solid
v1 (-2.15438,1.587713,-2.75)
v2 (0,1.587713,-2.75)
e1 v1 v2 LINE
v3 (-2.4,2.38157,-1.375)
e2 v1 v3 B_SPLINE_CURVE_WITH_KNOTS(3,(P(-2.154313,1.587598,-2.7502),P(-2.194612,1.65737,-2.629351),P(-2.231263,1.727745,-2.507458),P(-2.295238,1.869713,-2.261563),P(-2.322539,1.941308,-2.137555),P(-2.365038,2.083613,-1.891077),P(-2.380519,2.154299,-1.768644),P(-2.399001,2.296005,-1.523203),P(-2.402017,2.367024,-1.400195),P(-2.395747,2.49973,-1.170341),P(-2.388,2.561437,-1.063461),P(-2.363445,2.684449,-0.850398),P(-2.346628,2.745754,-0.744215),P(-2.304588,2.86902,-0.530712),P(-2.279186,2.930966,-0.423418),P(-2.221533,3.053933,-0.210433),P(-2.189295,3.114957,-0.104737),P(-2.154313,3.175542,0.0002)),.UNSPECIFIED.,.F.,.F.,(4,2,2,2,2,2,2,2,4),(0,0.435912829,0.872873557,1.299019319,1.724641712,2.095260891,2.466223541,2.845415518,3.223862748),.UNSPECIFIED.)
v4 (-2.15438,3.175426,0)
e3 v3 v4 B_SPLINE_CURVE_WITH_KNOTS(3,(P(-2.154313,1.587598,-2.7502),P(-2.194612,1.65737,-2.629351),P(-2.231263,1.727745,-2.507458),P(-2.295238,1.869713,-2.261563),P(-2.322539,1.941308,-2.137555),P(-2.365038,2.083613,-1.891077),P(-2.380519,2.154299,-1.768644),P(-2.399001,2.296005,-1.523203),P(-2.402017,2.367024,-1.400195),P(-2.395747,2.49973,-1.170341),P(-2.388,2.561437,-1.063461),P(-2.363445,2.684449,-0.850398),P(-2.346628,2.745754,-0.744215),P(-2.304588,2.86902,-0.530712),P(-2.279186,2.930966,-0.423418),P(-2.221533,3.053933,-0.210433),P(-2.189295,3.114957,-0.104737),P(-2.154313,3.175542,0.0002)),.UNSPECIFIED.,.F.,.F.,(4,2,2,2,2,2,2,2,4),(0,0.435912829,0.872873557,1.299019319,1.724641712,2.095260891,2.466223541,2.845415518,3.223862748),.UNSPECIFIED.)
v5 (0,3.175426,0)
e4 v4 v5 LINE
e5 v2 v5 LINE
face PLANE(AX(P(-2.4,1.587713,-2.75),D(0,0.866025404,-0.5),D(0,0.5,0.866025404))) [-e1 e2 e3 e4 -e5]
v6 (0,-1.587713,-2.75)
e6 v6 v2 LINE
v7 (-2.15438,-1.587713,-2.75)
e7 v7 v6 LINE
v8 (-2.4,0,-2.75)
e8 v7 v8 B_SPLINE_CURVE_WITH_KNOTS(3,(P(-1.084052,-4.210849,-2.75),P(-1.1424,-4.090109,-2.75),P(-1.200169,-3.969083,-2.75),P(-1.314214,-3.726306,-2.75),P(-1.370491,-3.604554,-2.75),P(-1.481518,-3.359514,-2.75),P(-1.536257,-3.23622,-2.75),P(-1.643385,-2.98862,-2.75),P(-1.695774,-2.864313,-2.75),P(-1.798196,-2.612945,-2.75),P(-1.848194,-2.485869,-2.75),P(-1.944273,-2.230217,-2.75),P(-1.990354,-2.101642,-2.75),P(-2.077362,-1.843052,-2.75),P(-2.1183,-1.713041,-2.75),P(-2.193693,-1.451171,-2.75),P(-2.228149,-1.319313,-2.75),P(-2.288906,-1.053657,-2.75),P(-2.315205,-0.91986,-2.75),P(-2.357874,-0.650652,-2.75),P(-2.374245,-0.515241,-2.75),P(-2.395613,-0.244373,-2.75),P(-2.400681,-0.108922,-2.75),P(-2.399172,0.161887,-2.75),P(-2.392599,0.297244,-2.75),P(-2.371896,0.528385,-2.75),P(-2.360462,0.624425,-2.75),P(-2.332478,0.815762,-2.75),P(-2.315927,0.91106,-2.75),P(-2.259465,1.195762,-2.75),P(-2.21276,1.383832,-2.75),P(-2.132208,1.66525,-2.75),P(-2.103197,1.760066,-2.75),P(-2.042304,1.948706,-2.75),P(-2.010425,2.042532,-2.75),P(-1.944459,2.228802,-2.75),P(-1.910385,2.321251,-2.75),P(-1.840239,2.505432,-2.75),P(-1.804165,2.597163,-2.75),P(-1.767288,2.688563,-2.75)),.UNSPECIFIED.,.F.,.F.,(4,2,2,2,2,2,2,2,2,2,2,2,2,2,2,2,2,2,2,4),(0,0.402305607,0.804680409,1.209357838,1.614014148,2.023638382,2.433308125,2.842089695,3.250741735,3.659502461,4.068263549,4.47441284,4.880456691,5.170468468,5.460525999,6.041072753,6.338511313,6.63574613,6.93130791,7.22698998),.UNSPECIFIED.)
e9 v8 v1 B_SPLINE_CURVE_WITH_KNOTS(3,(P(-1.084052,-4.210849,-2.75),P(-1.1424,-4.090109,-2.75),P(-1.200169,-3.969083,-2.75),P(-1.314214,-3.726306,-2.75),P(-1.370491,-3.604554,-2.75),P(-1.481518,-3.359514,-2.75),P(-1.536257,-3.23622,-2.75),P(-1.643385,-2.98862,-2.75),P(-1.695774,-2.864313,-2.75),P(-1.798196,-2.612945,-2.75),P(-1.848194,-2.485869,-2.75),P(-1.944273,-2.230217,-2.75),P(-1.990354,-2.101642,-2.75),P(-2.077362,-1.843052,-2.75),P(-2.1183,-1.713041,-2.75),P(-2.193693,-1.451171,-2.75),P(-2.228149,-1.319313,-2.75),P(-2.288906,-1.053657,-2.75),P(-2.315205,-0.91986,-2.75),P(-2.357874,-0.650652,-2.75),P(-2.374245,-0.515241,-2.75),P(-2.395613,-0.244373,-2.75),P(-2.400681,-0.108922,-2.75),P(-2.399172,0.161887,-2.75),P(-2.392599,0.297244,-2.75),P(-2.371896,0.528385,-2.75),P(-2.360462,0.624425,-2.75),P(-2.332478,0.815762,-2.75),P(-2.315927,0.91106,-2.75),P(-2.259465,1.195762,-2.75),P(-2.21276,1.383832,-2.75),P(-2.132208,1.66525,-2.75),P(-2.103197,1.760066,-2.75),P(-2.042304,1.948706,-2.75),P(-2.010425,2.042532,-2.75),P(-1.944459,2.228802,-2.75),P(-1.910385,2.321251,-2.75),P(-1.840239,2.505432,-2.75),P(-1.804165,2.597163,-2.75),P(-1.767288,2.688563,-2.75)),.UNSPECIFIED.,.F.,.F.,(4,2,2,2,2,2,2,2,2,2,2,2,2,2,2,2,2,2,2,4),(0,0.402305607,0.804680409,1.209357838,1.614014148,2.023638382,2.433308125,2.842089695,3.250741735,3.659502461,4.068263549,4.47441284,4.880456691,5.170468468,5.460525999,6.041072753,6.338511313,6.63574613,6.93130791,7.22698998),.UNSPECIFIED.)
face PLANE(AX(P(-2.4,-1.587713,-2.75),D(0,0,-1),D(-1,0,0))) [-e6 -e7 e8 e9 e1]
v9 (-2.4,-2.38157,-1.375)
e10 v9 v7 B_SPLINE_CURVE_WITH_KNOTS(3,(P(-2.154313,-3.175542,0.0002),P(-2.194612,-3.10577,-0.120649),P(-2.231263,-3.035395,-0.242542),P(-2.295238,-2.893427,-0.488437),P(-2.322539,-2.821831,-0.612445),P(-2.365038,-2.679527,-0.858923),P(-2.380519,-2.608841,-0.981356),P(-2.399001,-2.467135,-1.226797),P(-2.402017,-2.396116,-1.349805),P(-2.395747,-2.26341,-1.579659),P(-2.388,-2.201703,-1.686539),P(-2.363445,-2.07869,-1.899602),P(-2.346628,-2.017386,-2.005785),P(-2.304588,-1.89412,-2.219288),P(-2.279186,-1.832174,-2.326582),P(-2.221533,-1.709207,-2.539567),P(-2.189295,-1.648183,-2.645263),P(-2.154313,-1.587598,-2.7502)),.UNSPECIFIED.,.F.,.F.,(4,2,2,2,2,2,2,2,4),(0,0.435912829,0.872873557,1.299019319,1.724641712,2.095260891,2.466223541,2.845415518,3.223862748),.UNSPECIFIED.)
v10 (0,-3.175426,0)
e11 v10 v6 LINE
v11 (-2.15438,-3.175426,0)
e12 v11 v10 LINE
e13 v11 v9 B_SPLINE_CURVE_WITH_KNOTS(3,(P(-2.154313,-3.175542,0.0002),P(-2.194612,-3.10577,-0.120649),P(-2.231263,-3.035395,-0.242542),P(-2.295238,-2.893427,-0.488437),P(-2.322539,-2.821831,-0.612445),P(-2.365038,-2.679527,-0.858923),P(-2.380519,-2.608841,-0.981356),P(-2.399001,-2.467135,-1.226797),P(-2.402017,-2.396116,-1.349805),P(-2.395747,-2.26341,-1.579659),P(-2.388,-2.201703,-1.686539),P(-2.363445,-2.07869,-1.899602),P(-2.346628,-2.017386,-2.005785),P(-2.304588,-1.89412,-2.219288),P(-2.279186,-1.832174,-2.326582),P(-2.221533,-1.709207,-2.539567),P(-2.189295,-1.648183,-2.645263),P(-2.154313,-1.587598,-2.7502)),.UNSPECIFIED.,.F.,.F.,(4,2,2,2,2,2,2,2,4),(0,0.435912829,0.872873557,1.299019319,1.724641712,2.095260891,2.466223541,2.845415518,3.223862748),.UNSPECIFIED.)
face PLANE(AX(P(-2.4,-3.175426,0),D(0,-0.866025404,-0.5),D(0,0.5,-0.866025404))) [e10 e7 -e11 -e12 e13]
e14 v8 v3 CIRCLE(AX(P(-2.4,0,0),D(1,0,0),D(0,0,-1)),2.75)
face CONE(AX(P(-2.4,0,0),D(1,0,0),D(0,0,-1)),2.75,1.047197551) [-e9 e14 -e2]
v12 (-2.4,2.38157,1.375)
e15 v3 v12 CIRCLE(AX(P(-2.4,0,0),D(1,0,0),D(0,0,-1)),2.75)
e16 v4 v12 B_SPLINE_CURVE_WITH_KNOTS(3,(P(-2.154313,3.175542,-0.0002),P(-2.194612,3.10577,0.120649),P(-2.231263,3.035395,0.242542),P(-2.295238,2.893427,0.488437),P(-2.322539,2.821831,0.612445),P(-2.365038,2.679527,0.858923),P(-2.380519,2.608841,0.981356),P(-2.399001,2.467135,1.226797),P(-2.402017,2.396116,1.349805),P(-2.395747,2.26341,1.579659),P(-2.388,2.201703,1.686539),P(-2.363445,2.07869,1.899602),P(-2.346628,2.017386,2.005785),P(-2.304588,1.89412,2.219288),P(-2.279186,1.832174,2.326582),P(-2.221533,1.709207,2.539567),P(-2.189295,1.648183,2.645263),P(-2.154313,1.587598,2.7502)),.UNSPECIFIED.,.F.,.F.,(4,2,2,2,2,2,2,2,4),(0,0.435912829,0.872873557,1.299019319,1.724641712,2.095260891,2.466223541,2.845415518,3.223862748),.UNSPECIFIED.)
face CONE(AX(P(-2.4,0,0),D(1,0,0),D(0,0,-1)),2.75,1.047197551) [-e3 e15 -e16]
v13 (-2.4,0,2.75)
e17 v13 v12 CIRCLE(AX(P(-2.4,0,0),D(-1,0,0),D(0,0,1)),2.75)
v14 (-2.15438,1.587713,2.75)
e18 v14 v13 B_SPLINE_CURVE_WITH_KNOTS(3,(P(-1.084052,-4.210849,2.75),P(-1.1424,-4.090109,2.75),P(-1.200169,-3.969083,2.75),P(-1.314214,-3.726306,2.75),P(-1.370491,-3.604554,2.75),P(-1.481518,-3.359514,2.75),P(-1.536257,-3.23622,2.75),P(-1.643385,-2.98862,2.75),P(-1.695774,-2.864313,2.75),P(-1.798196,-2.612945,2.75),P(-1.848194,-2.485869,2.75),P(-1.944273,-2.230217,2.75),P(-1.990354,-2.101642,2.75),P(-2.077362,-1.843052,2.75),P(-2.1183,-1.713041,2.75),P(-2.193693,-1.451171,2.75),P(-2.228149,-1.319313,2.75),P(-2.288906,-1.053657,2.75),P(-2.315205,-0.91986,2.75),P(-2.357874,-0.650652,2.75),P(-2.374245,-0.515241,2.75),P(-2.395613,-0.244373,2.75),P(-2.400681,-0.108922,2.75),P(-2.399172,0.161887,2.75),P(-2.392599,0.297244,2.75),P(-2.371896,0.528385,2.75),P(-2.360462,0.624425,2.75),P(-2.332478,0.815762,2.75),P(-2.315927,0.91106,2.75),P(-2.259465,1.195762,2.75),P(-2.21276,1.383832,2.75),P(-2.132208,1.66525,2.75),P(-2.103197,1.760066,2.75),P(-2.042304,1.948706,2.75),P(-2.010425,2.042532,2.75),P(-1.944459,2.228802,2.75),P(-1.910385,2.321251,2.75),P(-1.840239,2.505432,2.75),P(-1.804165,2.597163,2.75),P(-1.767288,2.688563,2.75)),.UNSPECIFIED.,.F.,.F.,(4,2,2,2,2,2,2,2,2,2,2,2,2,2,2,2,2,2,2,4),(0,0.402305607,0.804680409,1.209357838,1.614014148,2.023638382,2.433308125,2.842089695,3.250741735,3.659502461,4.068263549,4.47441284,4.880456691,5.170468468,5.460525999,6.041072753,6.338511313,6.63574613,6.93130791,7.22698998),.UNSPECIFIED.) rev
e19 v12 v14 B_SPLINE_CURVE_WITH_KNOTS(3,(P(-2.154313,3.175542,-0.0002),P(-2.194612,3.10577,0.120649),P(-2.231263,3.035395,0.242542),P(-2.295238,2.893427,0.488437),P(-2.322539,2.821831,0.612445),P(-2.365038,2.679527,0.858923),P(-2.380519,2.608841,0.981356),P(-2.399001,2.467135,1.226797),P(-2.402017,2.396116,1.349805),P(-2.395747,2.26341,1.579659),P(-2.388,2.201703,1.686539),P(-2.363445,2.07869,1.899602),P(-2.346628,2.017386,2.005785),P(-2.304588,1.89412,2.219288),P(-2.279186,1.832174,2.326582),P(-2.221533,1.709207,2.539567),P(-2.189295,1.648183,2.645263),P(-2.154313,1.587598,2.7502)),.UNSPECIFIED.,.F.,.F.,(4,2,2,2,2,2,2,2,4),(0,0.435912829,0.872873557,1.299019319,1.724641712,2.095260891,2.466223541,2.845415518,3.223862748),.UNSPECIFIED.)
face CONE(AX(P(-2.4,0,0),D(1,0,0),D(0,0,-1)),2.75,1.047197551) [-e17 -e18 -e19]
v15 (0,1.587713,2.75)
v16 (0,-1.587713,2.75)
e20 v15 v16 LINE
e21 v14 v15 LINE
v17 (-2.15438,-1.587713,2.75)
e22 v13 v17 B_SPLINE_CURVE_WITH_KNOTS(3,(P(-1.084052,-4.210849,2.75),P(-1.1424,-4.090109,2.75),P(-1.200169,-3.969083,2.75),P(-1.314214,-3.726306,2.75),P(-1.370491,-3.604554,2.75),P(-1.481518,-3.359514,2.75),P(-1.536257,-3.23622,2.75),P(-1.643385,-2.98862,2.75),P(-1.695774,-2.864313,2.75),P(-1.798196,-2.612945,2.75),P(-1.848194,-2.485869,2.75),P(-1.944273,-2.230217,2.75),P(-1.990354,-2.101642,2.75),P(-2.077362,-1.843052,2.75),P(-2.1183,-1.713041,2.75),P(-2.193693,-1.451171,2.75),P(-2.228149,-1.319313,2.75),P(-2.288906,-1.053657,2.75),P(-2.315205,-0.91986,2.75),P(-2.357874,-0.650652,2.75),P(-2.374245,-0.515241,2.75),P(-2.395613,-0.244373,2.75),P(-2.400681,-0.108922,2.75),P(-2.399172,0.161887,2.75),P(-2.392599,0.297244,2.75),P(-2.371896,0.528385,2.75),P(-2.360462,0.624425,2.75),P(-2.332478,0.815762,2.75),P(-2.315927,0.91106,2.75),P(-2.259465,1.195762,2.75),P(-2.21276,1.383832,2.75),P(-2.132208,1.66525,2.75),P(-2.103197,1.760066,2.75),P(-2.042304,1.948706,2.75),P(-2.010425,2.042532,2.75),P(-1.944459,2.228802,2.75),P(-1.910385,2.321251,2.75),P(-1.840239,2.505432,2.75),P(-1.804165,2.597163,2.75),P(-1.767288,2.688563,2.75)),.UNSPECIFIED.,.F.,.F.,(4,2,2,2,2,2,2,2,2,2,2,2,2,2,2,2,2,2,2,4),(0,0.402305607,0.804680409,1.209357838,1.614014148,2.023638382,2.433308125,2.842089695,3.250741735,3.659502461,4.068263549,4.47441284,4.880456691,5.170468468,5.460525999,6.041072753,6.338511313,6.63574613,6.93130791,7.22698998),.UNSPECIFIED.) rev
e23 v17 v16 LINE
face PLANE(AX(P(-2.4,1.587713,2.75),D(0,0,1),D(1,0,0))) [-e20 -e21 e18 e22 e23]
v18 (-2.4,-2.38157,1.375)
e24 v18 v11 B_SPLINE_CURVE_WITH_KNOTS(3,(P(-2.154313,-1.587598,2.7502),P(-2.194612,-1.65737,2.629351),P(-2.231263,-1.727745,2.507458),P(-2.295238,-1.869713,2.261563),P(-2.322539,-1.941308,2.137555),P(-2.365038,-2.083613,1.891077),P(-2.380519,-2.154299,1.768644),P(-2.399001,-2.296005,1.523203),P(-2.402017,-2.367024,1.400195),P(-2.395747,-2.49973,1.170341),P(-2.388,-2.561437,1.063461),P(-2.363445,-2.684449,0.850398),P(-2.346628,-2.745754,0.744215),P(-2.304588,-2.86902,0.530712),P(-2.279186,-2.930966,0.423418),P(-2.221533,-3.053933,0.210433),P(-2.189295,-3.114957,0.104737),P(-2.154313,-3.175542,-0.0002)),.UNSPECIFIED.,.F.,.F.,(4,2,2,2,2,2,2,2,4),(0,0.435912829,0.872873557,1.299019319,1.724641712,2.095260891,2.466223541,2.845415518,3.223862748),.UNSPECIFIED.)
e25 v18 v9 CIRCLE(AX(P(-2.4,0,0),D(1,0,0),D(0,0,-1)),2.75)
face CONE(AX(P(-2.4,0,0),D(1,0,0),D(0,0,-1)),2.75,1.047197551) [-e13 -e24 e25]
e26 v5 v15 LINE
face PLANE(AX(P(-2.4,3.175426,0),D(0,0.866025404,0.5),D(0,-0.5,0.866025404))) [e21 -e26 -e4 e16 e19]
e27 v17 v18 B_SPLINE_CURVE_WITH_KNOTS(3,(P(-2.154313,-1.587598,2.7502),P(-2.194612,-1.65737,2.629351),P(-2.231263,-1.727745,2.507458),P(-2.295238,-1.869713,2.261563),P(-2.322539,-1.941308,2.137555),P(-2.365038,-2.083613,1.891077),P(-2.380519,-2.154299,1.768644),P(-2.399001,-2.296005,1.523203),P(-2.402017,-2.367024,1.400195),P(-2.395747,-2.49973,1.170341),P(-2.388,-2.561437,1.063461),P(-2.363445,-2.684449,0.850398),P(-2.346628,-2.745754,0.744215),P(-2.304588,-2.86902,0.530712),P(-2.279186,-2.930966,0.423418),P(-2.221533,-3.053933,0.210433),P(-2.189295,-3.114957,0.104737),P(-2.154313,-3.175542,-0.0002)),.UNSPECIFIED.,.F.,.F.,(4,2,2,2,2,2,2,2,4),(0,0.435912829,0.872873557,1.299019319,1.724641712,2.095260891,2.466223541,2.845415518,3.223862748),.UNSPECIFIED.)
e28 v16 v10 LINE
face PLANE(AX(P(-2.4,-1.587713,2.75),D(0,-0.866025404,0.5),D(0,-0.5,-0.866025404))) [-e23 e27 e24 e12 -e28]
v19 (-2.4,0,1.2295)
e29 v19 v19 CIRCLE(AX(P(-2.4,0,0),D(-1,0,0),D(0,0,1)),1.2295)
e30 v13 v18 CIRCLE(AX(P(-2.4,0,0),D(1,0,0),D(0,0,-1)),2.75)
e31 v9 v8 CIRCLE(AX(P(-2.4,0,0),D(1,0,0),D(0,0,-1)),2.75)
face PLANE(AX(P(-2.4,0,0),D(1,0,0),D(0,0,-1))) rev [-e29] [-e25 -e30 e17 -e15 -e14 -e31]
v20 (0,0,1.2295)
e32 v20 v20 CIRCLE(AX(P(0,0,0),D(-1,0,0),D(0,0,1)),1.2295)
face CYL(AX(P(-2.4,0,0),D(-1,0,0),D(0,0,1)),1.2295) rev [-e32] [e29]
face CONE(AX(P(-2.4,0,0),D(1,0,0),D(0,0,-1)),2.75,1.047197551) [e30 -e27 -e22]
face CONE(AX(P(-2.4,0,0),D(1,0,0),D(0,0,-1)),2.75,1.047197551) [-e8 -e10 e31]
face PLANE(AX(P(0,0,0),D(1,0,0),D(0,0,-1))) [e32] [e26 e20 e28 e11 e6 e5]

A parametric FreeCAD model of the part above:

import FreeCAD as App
import Part
import Sketcher
Q = App.Units.Quantity

doc = App.newDocument("Part")
params = doc.addObject("Spreadsheet::Sheet", "Params")
for row, (alias, value) in enumerate([
    ("pad1_length", "2.4 mm"),
    ("groove_angle", "360 deg"),
    ("hole_diameter", "2.459 mm"),
], start=1):
    params.set(f"A{row}", alias)
    params.set(f"B{row}", "=" + value)
    params.setAlias(f"B{row}", alias)

body = doc.addObject("PartDesign::Body", "Body")

sketch1 = body.newObject("Sketcher::SketchObject", "Sketch")
sketch1.AttachmentSupport = (doc.getObject("YZ_Plane"), [""])
sketch1.MapMode = "FlatFace"
sketch1.addGeometry([
    Part.LineSegment(App.Vector(3.2, 0, 0), App.Vector(1.6, 2.8, 0)),
    Part.LineSegment(App.Vector(1.6, 2.8, 0), App.Vector(-1.6, 2.8, 0)),
    Part.LineSegment(App.Vector(-1.6, 2.8, 0), App.Vector(-3.2, 0, 0)),
    Part.LineSegment(App.Vector(-3.2, 0, 0), App.Vector(-1.6, -2.8, 0)),
    Part.LineSegment(App.Vector(-1.6, -2.8, 0), App.Vector(1.6, -2.8, 0)),
    Part.LineSegment(App.Vector(1.6, -2.8, 0), App.Vector(3.2, 0, 0)),
], False)
sketch1.addConstraint([
    Sketcher.Constraint("Coincident", 0, 2, 1, 1),
    Sketcher.Constraint("Coincident", 1, 2, 2, 1),
    Sketcher.Constraint("Coincident", 2, 2, 3, 1),
    Sketcher.Constraint("Coincident", 3, 2, 4, 1),
    Sketcher.Constraint("Coincident", 4, 2, 5, 1),
    Sketcher.Constraint("Coincident", 5, 2, 0, 1),
    Sketcher.Constraint("Horizontal", 1),
    Sketcher.Constraint("Horizontal", 4),
    Sketcher.Constraint("Symmetric", 0, 2, 3, 2, -1, 1),
    Sketcher.Constraint("Symmetric", 2, 2, 5, 2, -1, 1),
    Sketcher.Constraint("PointOnObject", 2, 2, -1),
    Sketcher.Constraint("Parallel", 2, 5),
    Sketcher.Constraint("Vertical", 1, 2, 3, 2),
    Sketcher.Constraint("Angle", 0, Q("120 deg")),
    Sketcher.Constraint("DistanceY", 3, 2, 1, 2, 5.5),
    Sketcher.Constraint("DistanceX", 1, 2, 1, 1, 3.175426),
])
pad1 = body.newObject("PartDesign::Pad", "Pad")
pad1.Profile = sketch1
pad1.setExpression("Length", "Params.pad1_length")
pad1.Reversed = True

sketch2 = body.newObject("Sketcher::SketchObject", "Sketch001")
sketch2.AttachmentSupport = (doc.getObject("XY_Plane"), [""])
sketch2.MapMode = "FlatFace"
sketch2.addGeometry([
    Part.LineSegment(App.Vector(-2.4, 2.75, 0), App.Vector(-2.15, 3.18, 0)),
    Part.LineSegment(App.Vector(-2.15, 3.18, 0), App.Vector(-2.4, 3.18, 0)),
    Part.LineSegment(App.Vector(-2.4, 3.18, 0), App.Vector(-2.4, 2.75, 0)),
], False)
sketch2.addConstraint([
    Sketcher.Constraint("Coincident", 0, 2, 1, 1),
    Sketcher.Constraint("Coincident", 1, 2, 2, 1),
    Sketcher.Constraint("Coincident", 2, 2, 0, 1),
    Sketcher.Constraint("Horizontal", 1),
    Sketcher.Constraint("Vertical", 2),
    Sketcher.Constraint("Angle", 0, Q("60 deg")),
    Sketcher.Constraint("DistanceX", 1, 2, -1, 1, 2.4),
    Sketcher.Constraint("DistanceY", -1, 1, 2, 2, 2.75),
    Sketcher.Constraint("DistanceX", 1, 2, 1, 1, 0.24562),
])
groove = body.newObject("PartDesign::Groove", "Groove")
groove.Profile = sketch2
groove.ReferenceAxis = (sketch2, ["H_Axis"])
groove.setExpression("Angle", "Params.groove_angle")

sketch3 = body.newObject("Sketcher::SketchObject", "Sketch002")
sketch3.AttachmentSupport = (doc.getObject("YZ_Plane"), [""])
sketch3.MapMode = "FlatFace"
sketch3.AttachmentOffset = App.Placement(App.Vector(0, 0, -2.4), App.Rotation())
sketch3.addGeometry(Part.Circle(App.Vector(0, 0, 0), App.Vector(0, 0, 1), 1.2), False)
sketch3.addConstraint([
    Sketcher.Constraint("Coincident", 0, 3, -1, 1),
    Sketcher.Constraint("Diameter", 0, 2.459),
])
doc.recompute()
hole = body.newObject("PartDesign::Hole", "Hole")
hole.Profile = sketch3
hole.ThreadType = "None"
hole.setExpression("Diameter", "Params.hole_diameter")
hole.DepthType = "ThroughAll"
hole.Reversed = True

doc.recompute()
